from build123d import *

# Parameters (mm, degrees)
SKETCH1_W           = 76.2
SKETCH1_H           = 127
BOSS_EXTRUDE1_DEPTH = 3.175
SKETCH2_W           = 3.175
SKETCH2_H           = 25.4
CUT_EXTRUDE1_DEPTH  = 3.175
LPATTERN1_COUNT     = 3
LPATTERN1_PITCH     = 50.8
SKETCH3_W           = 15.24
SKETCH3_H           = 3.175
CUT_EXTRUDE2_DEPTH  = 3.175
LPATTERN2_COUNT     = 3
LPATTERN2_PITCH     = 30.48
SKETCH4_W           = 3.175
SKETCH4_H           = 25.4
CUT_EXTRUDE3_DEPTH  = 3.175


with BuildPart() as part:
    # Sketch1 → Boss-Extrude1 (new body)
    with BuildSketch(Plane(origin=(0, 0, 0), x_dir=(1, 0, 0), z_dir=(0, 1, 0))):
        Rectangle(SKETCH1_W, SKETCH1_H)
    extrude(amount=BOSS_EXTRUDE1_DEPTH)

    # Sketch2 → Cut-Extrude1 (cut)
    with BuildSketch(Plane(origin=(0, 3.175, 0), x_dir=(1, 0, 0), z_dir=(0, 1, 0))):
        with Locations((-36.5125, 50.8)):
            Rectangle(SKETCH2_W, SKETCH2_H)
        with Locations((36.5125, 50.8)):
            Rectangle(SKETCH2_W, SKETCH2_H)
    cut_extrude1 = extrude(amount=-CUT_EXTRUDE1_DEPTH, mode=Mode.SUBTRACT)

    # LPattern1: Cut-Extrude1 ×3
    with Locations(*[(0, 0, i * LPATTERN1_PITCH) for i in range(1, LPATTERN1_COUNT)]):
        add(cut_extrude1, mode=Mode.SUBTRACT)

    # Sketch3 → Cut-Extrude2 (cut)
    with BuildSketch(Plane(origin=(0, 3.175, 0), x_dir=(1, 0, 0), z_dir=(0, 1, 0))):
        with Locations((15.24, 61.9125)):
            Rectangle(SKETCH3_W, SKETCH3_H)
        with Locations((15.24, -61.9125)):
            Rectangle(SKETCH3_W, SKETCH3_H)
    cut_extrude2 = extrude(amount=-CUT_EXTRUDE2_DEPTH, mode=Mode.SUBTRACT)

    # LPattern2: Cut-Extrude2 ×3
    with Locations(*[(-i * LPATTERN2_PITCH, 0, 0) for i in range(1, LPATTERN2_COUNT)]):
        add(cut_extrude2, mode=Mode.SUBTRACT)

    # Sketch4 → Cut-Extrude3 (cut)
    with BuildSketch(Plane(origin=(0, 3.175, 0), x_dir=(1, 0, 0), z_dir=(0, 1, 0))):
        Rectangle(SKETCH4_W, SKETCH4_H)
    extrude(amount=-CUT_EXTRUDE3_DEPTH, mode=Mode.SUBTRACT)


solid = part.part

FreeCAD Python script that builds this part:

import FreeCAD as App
import Part
import Sketcher

V = App.Vector
Q = App.Units.Quantity

doc = App.newDocument("Part")
body = doc.addObject("PartDesign::Body", "Body")

sketch1 = body.newObject("Sketcher::SketchObject", "Sketch")
sketch1.AttachmentSupport = (doc.getObject("XZ_Plane"), [""])
sketch1.MapMode = "FlatFace"
sketch1.addGeometry(Part.LineSegment(V(-38, -64, 0), V(-38, 64, 0)), False)
sketch1.addGeometry(Part.LineSegment(V(-38, 64, 0), V(38, 64, 0)), False)
sketch1.addGeometry(Part.LineSegment(V(38, 64, 0), V(38, -64, 0)), False)
sketch1.addGeometry(Part.LineSegment(V(38, -64, 0), V(-38, -64, 0)), False)
sketch1.addConstraint(Sketcher.Constraint("Coincident", 0, 2, 1, 1))
sketch1.addConstraint(Sketcher.Constraint("Coincident", 1, 2, 2, 1))
sketch1.addConstraint(Sketcher.Constraint("Coincident", 2, 2, 3, 1))
sketch1.addConstraint(Sketcher.Constraint("Coincident", 3, 2, 0, 1))
sketch1.addConstraint(Sketcher.Constraint("Vertical", 0))
sketch1.addConstraint(Sketcher.Constraint("Horizontal", 1))
sketch1.addConstraint(Sketcher.Constraint("Vertical", 2))
sketch1.addConstraint(Sketcher.Constraint("Horizontal", 3))
sketch1.addConstraint(Sketcher.Constraint("Symmetric", 0, 2, 2, 2, -1, 1))
sketch1.addConstraint(Sketcher.Constraint("DistanceX", 1, 1, 1, 2, Q("3 in")))
sketch1.addConstraint(Sketcher.Constraint("DistanceY", 0, 1, 0, 2, Q("5 in")))
pad1 = body.newObject("PartDesign::Pad", "Pad")
pad1.Profile = sketch1
pad1.Length = Q("0.125 in")
pad1.Reversed = True

sketch2 = body.newObject("Sketcher::SketchObject", "Sketch001")
sketch2.AttachmentSupport = (doc.getObject("XZ_Plane"), [""])
sketch2.MapMode = "FlatFace"
sketch2.AttachmentOffset = App.Placement(V(0, 0, -0.125 * 25.4), App.Rotation())
sketch2.addGeometry(Part.LineSegment(V(-38.1, -63.5, 0), V(-38.1, -38.1, 0)), False)
sketch2.addGeometry(Part.LineSegment(V(-38.1, -38.1, 0), V(-34.9, -38.1, 0)), False)
sketch2.addGeometry(Part.LineSegment(V(-34.9, -38.1, 0), V(-34.9, -63.5, 0)), False)
sketch2.addGeometry(Part.LineSegment(V(-34.9, -63.5, 0), V(-38.1, -63.5, 0)), False)
sketch2.addGeometry(Part.LineSegment(V(34.9, -63.5, 0), V(34.9, -38.1, 0)), False)
sketch2.addGeometry(Part.LineSegment(V(34.9, -38.1, 0), V(38.1, -38.1, 0)), False)
sketch2.addGeometry(Part.LineSegment(V(38.1, -38.1, 0), V(38.1, -63.5, 0)), False)
sketch2.addGeometry(Part.LineSegment(V(38.1, -63.5, 0), V(34.9, -63.5, 0)), False)
sketch2.addConstraint(Sketcher.Constraint("Coincident", 0, 2, 1, 1))
sketch2.addConstraint(Sketcher.Constraint("Coincident", 1, 2, 2, 1))
sketch2.addConstraint(Sketcher.Constraint("Coincident", 2, 2, 3, 1))
sketch2.addConstraint(Sketcher.Constraint("Coincident", 3, 2, 0, 1))
sketch2.addConstraint(Sketcher.Constraint("Coincident", 4, 2, 5, 1))
sketch2.addConstraint(Sketcher.Constraint("Coincident", 5, 2, 6, 1))
sketch2.addConstraint(Sketcher.Constraint("Coincident", 6, 2, 7, 1))
sketch2.addConstraint(Sketcher.Constraint("Coincident", 7, 2, 4, 1))
sketch2.addConstraint(Sketcher.Constraint("Vertical", 0))
sketch2.addConstraint(Sketcher.Constraint("Horizontal", 1))
sketch2.addConstraint(Sketcher.Constraint("Vertical", 2))
sketch2.addConstraint(Sketcher.Constraint("Horizontal", 3))
sketch2.addConstraint(Sketcher.Constraint("Vertical", 4))
sketch2.addConstraint(Sketcher.Constraint("Horizontal", 5))
sketch2.addConstraint(Sketcher.Constraint("Vertical", 6))
sketch2.addConstraint(Sketcher.Constraint("Horizontal", 7))
sketch2.addConstraint(Sketcher.Constraint("Symmetric", 1, 2, 4, 2, -2))
sketch2.addConstraint(Sketcher.Constraint("Symmetric", 3, 2, 6, 2, -2))
sketch2.addConstraint(Sketcher.Constraint("DistanceY", 0, 1, 0, 2, Q("1 in")))
sketch2.addConstraint(Sketcher.Constraint("DistanceX", 0, 2, 5, 2, Q("3 in")))
sketch2.addConstraint(Sketcher.Constraint("DistanceY", 0, 2, -1, 1, Q("1.5 in")))
sketch2.addConstraint(Sketcher.Constraint("DistanceX", 1, 1, 1, 2, Q("0.125 in")))
pocket1 = body.newObject("PartDesign::Pocket", "Pocket")
pocket1.Profile = sketch2
pocket1.Length = Q("0.125 in")
pocket1.Reversed = True
doc.recompute()

linearpattern = body.newObject("PartDesign::LinearPattern", "LinearPattern")
linearpattern.Originals = [pocket1]
linearpattern.Direction = (doc.getObject("Z_Axis"), [""])
linearpattern.Mode = "offset"
linearpattern.Offset = Q("2 in")
linearpattern.Occurrences = 3
body.Tip = linearpattern

sketch3 = body.newObject("Sketcher::SketchObject", "Sketch002")
sketch3.AttachmentSupport = (doc.getObject("XZ_Plane"), [""])
sketch3.MapMode = "FlatFace"
sketch3.AttachmentOffset = App.Placement(V(0, 0, -0.125 * 25.4), App.Rotation())
sketch3.addGeometry(Part.LineSegment(V(7.6, -63.5, 0), V(7.6, -60.3, 0)), False)
sketch3.addGeometry(Part.LineSegment(V(7.6, -60.3, 0), V(22.9, -60.3, 0)), False)
sketch3.addGeometry(Part.LineSegment(V(22.9, -60.3, 0), V(22.9, -63.5, 0)), False)
sketch3.addGeometry(Part.LineSegment(V(22.9, -63.5, 0), V(7.6, -63.5, 0)), False)
sketch3.addGeometry(Part.LineSegment(V(7.6, 60.3, 0), V(7.6, 63.5, 0)), False)
sketch3.addGeometry(Part.LineSegment(V(7.6, 63.5, 0), V(22.9, 63.5, 0)), False)
sketch3.addGeometry(Part.LineSegment(V(22.9, 63.5, 0), V(22.9, 60.3, 0)), False)
sketch3.addGeometry(Part.LineSegment(V(22.9, 60.3, 0), V(7.6, 60.3, 0)), False)
sketch3.addConstraint(Sketcher.Constraint("Coincident", 0, 2, 1, 1))
sketch3.addConstraint(Sketcher.Constraint("Coincident", 1, 2, 2, 1))
sketch3.addConstraint(Sketcher.Constraint("Coincident", 2, 2, 3, 1))
sketch3.addConstraint(Sketcher.Constraint("Coincident", 3, 2, 0, 1))
sketch3.addConstraint(Sketcher.Constraint("Coincident", 4, 2, 5, 1))
sketch3.addConstraint(Sketcher.Constraint("Coincident", 5, 2, 6, 1))
sketch3.addConstraint(Sketcher.Constraint("Coincident", 6, 2, 7, 1))
sketch3.addConstraint(Sketcher.Constraint("Coincident", 7, 2, 4, 1))
sketch3.addConstraint(Sketcher.Constraint("Vertical", 0))
sketch3.addConstraint(Sketcher.Constraint("Horizontal", 1))
sketch3.addConstraint(Sketcher.Constraint("Vertical", 2))
sketch3.addConstraint(Sketcher.Constraint("Horizontal", 3))
sketch3.addConstraint(Sketcher.Constraint("Vertical", 4))
sketch3.addConstraint(Sketcher.Constraint("Horizontal", 5))
sketch3.addConstraint(Sketcher.Constraint("Vertical", 6))
sketch3.addConstraint(Sketcher.Constraint("Horizontal", 7))
sketch3.addConstraint(Sketcher.Constraint("Symmetric", 3, 2, 4, 2, -1))
sketch3.addConstraint(Sketcher.Constraint("Symmetric", 1, 2, 6, 2, -1))
sketch3.addConstraint(Sketcher.Constraint("DistanceX", 1, 1, 1, 2, Q("0.6 in")))
sketch3.addConstraint(Sketcher.Constraint("DistanceY", 3, 2, 4, 2, Q("5 in")))
sketch3.addConstraint(Sketcher.Constraint("DistanceX", -1, 1, 0, 2, Q("0.3 in")))
sketch3.addConstraint(Sketcher.Constraint("DistanceY", 0, 1, 0, 2, Q("0.125 in")))
pocket2 = body.newObject("PartDesign::Pocket", "Pocket001")
pocket2.Profile = sketch3
pocket2.Length = Q("0.125 in")
pocket2.Reversed = True
doc.recompute()

linearpattern2 = body.newObject("PartDesign::LinearPattern", "LinearPattern001")
linearpattern2.Originals = [pocket2]
linearpattern2.Direction = (doc.getObject("X_Axis"), [""])
linearpattern2.Mode = "offset"
linearpattern2.Offset = Q("1.2 in")
linearpattern2.Occurrences = 3
linearpattern2.Reversed = True
body.Tip = linearpattern2

sketch4 = body.newObject("Sketcher::SketchObject", "Sketch003")
sketch4.AttachmentSupport = (doc.getObject("XZ_Plane"), [""])
sketch4.MapMode = "FlatFace"
sketch4.AttachmentOffset = App.Placement(V(0, 0, -0.125 * 25.4), App.Rotation())
sketch4.addGeometry(Part.LineSegment(V(-1.6, -12.7, 0), V(-1.6, 12.7, 0)), False)
sketch4.addGeometry(Part.LineSegment(V(-1.6, 12.7, 0), V(1.6, 12.7, 0)), False)
sketch4.addGeometry(Part.LineSegment(V(1.6, 12.7, 0), V(1.6, -12.7, 0)), False)
sketch4.addGeometry(Part.LineSegment(V(1.6, -12.7, 0), V(-1.6, -12.7, 0)), False)
sketch4.addConstraint(Sketcher.Constraint("Coincident", 0, 2, 1, 1))
sketch4.addConstraint(Sketcher.Constraint("Coincident", 1, 2, 2, 1))
sketch4.addConstraint(Sketcher.Constraint("Coincident", 2, 2, 3, 1))
sketch4.addConstraint(Sketcher.Constraint("Coincident", 3, 2, 0, 1))
sketch4.addConstraint(Sketcher.Constraint("Vertical", 0))
sketch4.addConstraint(Sketcher.Constraint("Horizontal", 1))
sketch4.addConstraint(Sketcher.Constraint("Vertical", 2))
sketch4.addConstraint(Sketcher.Constraint("Horizontal", 3))
sketch4.addConstraint(Sketcher.Constraint("Symmetric", 0, 2, 2, 2, -1, 1))
sketch4.addConstraint(Sketcher.Constraint("DistanceY", 0, 1, 0, 2, Q("1 in")))
sketch4.addConstraint(Sketcher.Constraint("DistanceX", 1, 1, 1, 2, Q("0.125 in")))
pocket3 = body.newObject("PartDesign::Pocket", "Pocket002")
pocket3.Profile = sketch4
pocket3.Length = Q("0.125 in")
pocket3.Reversed = True

doc.recompute()
